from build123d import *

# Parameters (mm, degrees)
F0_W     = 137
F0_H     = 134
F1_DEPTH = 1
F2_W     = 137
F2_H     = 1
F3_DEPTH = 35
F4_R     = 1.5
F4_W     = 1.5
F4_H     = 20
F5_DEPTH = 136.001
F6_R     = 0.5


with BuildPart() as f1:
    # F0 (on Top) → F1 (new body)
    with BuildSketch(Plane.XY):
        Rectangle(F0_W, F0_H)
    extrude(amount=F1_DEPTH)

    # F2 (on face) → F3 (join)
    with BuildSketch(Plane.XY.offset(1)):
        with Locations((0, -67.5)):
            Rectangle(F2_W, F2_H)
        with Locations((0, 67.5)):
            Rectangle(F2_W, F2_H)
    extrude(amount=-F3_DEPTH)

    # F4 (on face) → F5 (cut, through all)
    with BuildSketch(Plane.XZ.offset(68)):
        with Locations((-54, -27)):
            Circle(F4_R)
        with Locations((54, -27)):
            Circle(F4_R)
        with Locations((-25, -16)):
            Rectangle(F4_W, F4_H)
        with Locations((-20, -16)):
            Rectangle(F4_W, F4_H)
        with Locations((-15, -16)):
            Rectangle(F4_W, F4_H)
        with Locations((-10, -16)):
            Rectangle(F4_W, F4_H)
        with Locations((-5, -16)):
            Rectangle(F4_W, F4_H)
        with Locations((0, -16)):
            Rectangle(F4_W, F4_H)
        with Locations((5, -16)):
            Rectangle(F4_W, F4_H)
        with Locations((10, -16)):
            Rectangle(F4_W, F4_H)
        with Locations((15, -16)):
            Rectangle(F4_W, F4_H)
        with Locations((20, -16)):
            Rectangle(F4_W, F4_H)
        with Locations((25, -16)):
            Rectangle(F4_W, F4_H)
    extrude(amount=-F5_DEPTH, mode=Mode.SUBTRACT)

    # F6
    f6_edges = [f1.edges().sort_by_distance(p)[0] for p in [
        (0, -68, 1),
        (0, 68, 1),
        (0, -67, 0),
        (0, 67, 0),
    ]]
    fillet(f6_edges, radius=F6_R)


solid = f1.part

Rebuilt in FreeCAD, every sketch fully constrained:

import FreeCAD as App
import Part
import Sketcher

V = App.Vector
Q = App.Units.Quantity


def edges_at(feature, points):
    """Names of the edges that pass closest to the given points."""
    edges = feature.Shape.Edges
    near = lambda p: min(range(len(edges)), key=lambda i: edges[i].distToShape(Part.Vertex(*p))[0])
    return sorted({f"Edge{near(p) + 1}" for p in points})


def add_polygon(sketch, points):
    """Adds a closed chain of lines whose ends are joined by coincident constraints."""
    first, n = sketch.GeometryCount, len(points)
    for a, b in zip(points, points[1:] + points[:1]):
        sketch.addGeometry(Part.LineSegment(App.Vector(*a, 0), App.Vector(*b, 0)), False)
    for i in range(n):
        sketch.addConstraint(Sketcher.Constraint("Coincident", first + i, 2, first + (i + 1) % n, 1))

doc = App.newDocument("Part")
body = doc.addObject("PartDesign::Body", "Body")

sketch1 = body.newObject("Sketcher::SketchObject", "Sketch")
sketch1.AttachmentSupport = (doc.getObject("XY_Plane"), [""])
sketch1.MapMode = "FlatFace"
add_polygon(sketch1, [(-68, 67), (-68, -67), (68, -67), (68, 67)])
sketch1.addConstraint([
    Sketcher.Constraint("Vertical", 0),
    Sketcher.Constraint("Horizontal", 1),
    Sketcher.Constraint("Vertical", 2),
    Sketcher.Constraint("Horizontal", 3),
    Sketcher.Constraint("Symmetric", 0, 2, 2, 2, -1, 1),
    Sketcher.Constraint("DistanceX", 1, 1, 1, 2, Q("137 mm")),
    Sketcher.Constraint("DistanceY", 0, 2, 0, 1, Q("134 mm")),
])
pad1 = body.newObject("PartDesign::Pad", "Pad")
pad1.Profile = sketch1
pad1.Length = 1

sketch2 = body.newObject("Sketcher::SketchObject", "Sketch001")
sketch2.AttachmentSupport = (doc.getObject("XY_Plane"), [""])
sketch2.MapMode = "FlatFace"
sketch2.AttachmentOffset = App.Placement(V(0, 0, 1), App.Rotation())
add_polygon(sketch2, [(-68.5, -67), (-68.5, -68), (68.5, -68), (68.5, -67)])
add_polygon(sketch2, [(-68.5, 68), (-68.5, 67), (68.5, 67), (68.5, 68)])
sketch2.addConstraint([
    Sketcher.Constraint("Vertical", 0),
    Sketcher.Constraint("Horizontal", 1),
    Sketcher.Constraint("Vertical", 2),
    Sketcher.Constraint("Horizontal", 3),
    Sketcher.Constraint("Vertical", 4),
    Sketcher.Constraint("Horizontal", 5),
    Sketcher.Constraint("Vertical", 6),
    Sketcher.Constraint("Horizontal", 7),
    Sketcher.Constraint("Symmetric", 2, 2, 4, 2, -1, 1),
    Sketcher.Constraint("Symmetric", 0, 2, 6, 2, -1, 1),
    Sketcher.Constraint("Vertical", 3, 2, 4, 2),
    Sketcher.Constraint("DistanceX", 1, 1, 1, 2, Q("137 mm")),
    Sketcher.Constraint("DistanceY", 0, 2, 0, 1, Q("1 mm")),
    Sketcher.Constraint("DistanceY", 0, 2, -1, 1, Q("68 mm")),
])
pad2 = body.newObject("PartDesign::Pad", "Pad001")
pad2.Profile = sketch2
pad2.Length = 35
pad2.Reversed = True

sketch3 = body.newObject("Sketcher::SketchObject", "Sketch002")
sketch3.AttachmentSupport = (doc.getObject("XZ_Plane"), [""])
sketch3.MapMode = "FlatFace"
sketch3.AttachmentOffset = App.Placement(V(0, 0, 68), App.Rotation())
sketch3.addGeometry(Part.Circle(V(-54, -27, 0), V(0, 0, 1), 1.5), False)
sketch3.addGeometry(Part.Circle(V(54, -27, 0), V(0, 0, 1), 1.5), False)
add_polygon(sketch3, [(-25.8, -6), (-25.8, -26), (-24.2, -26), (-24.2, -6)])
add_polygon(sketch3, [(-20.8, -6), (-20.8, -26), (-19.2, -26), (-19.2, -6)])
add_polygon(sketch3, [(-15.8, -6), (-15.8, -26), (-14.2, -26), (-14.2, -6)])
add_polygon(sketch3, [(-10.8, -6), (-10.8, -26), (-9.2, -26), (-9.2, -6)])
add_polygon(sketch3, [(-5.8, -6), (-5.8, -26), (-4.2, -26), (-4.2, -6)])
add_polygon(sketch3, [(-0.8, -6), (-0.8, -26), (0.8, -26), (0.8, -6)])
add_polygon(sketch3, [(4.2, -6), (4.2, -26), (5.8, -26), (5.8, -6)])
add_polygon(sketch3, [(9.2, -6), (9.2, -26), (10.8, -26), (10.8, -6)])
add_polygon(sketch3, [(14.2, -6), (14.2, -26), (15.8, -26), (15.8, -6)])
add_polygon(sketch3, [(19.2, -6), (19.2, -26), (20.8, -26), (20.8, -6)])
add_polygon(sketch3, [(24.2, -6), (24.2, -26), (25.8, -26), (25.8, -6)])
sketch3.addConstraint([
    Sketcher.Constraint("Vertical", 2),
    Sketcher.Constraint("Horizontal", 3),
    Sketcher.Constraint("Vertical", 4),
    Sketcher.Constraint("Horizontal", 5),
    Sketcher.Constraint("Vertical", 6),
    Sketcher.Constraint("Horizontal", 7),
    Sketcher.Constraint("Vertical", 8),
    Sketcher.Constraint("Horizontal", 9),
    Sketcher.Constraint("Vertical", 10),
    Sketcher.Constraint("Horizontal", 11),
    Sketcher.Constraint("Vertical", 12),
    Sketcher.Constraint("Horizontal", 13),
    Sketcher.Constraint("Vertical", 14),
    Sketcher.Constraint("Horizontal", 15),
    Sketcher.Constraint("Vertical", 16),
    Sketcher.Constraint("Horizontal", 17),
    Sketcher.Constraint("Vertical", 18),
    Sketcher.Constraint("Horizontal", 19),
    Sketcher.Constraint("Vertical", 20),
    Sketcher.Constraint("Horizontal", 21),
    Sketcher.Constraint("Vertical", 22),
    Sketcher.Constraint("Horizontal", 23),
    Sketcher.Constraint("Vertical", 24),
    Sketcher.Constraint("Horizontal", 25),
    Sketcher.Constraint("Vertical", 26),
    Sketcher.Constraint("Horizontal", 27),
    Sketcher.Constraint("Vertical", 28),
    Sketcher.Constraint("Horizontal", 29),
    Sketcher.Constraint("Vertical", 30),
    Sketcher.Constraint("Horizontal", 31),
    Sketcher.Constraint("Vertical", 32),
    Sketcher.Constraint("Horizontal", 33),
    Sketcher.Constraint("Vertical", 34),
    Sketcher.Constraint("Horizontal", 35),
    Sketcher.Constraint("Vertical", 36),
    Sketcher.Constraint("Horizontal", 37),
    Sketcher.Constraint("Vertical", 38),
    Sketcher.Constraint("Horizontal", 39),
    Sketcher.Constraint("Vertical", 40),
    Sketcher.Constraint("Horizontal", 41),
    Sketcher.Constraint("Vertical", 42),
    Sketcher.Constraint("Horizontal", 43),
    Sketcher.Constraint("Vertical", 44),
    Sketcher.Constraint("Horizontal", 45),
    Sketcher.Constraint("Equal", 0, 1),
    Sketcher.Constraint("Symmetric", 0, 3, 1, 3, -2),
    Sketcher.Constraint("Symmetric", 19, 2, 26, 2, -2),
    Sketcher.Constraint("Symmetric", 21, 2, 28, 2, -2),
    Sketcher.Constraint("Symmetric", 15, 2, 30, 2, -2),
    Sketcher.Constraint("Symmetric", 17, 2, 32, 2, -2),
    Sketcher.Constraint("Symmetric", 11, 2, 34, 2, -2),
    Sketcher.Constraint("Symmetric", 13, 2, 36, 2, -2),
    Sketcher.Constraint("Symmetric", 7, 2, 38, 2, -2),
    Sketcher.Constraint("Symmetric", 9, 2, 40, 2, -2),
    Sketcher.Constraint("Symmetric", 3, 2, 42, 2, -2),
    Sketcher.Constraint("Symmetric", 5, 2, 44, 2, -2),
    Sketcher.Constraint("Horizontal", 3, 2, 6, 2),
    Sketcher.Constraint("Horizontal", 5, 2, 8, 2),
    Sketcher.Constraint("Horizontal", 7, 2, 10, 2),
    Sketcher.Constraint("Horizontal", 9, 2, 12, 2),
    Sketcher.Constraint("Horizontal", 11, 2, 14, 2),
    Sketcher.Constraint("Horizontal", 13, 2, 16, 2),
    Sketcher.Constraint("Horizontal", 15, 2, 18, 2),
    Sketcher.Constraint("Horizontal", 17, 2, 20, 2),
    Sketcher.Constraint("Horizontal", 19, 2, 22, 2),
    Sketcher.Constraint("Horizontal", 21, 2, 24, 2),
    Sketcher.Constraint("Equal", 5, 7),
    Sketcher.Constraint("Equal", 9, 11),
    Sketcher.Constraint("Equal", 13, 15),
    Sketcher.Constraint("Equal", 17, 19),
    Sketcher.Constraint("Equal", 21, 23),
    Sketcher.Constraint("Diameter", 0, Q("3 mm")),
    Sketcher.Constraint("DistanceY", 2, 2, 2, 1, Q("20 mm")),
    Sketcher.Constraint("DistanceX", 3, 1, 3, 2, Q("1.5 mm")),
    Sketcher.Constraint("DistanceX", 0, 3, -1, 1, Q("54 mm")),
    Sketcher.Constraint("DistanceY", 0, 3, -1, 1, Q("27 mm")),
    Sketcher.Constraint("DistanceY", 2, 2, -1, 1, Q("26 mm")),
    Sketcher.Constraint("DistanceX", 2, 2, 6, 2, Q("5 mm")),
    Sketcher.Constraint("DistanceX", 6, 2, 10, 2, Q("5 mm")),
    Sketcher.Constraint("DistanceX", 10, 2, 14, 2, Q("5 mm")),
    Sketcher.Constraint("DistanceX", 14, 2, 18, 2, Q("5 mm")),
    Sketcher.Constraint("DistanceX", 18, 2, 22, 2, Q("5 mm")),
    Sketcher.Constraint("DistanceX", 22, 2, 26, 2, Q("5 mm")),
])
pocket1 = body.newObject("PartDesign::Pocket", "Pocket")
pocket1.Profile = sketch3
pocket1.Type = "ThroughAll"
doc.recompute()

fillet = body.newObject("PartDesign::Fillet", "Fillet")
fillet.Base = (pocket1, edges_at(pocket1, [
    (0, -68, 1),
    (0, 68, 1),
    (0, -67, 0),
    (0, 67, 0),
]))
fillet.Radius = 0.5

doc.recompute()
